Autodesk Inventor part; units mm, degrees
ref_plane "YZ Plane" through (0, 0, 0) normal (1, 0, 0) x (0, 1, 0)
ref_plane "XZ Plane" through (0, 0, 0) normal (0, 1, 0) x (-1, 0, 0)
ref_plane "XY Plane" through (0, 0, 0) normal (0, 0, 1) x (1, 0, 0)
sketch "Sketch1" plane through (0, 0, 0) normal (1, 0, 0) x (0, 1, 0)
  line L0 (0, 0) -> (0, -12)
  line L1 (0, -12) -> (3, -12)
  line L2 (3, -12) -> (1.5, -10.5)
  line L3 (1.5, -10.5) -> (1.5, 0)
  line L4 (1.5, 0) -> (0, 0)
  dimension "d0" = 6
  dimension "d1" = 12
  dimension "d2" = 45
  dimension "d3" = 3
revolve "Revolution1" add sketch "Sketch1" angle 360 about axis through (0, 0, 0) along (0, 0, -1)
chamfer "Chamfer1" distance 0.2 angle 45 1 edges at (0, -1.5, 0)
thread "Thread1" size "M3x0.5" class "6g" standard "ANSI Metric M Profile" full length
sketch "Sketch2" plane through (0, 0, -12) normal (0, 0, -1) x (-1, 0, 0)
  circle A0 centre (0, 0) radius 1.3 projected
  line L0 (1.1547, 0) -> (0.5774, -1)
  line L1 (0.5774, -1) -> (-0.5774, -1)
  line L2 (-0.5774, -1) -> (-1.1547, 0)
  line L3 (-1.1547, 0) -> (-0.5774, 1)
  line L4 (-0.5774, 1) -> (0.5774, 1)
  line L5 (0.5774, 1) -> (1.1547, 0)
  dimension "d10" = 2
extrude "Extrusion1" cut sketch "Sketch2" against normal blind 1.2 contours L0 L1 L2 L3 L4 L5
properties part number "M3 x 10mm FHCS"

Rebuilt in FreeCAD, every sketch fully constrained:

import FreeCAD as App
import Part
import Sketcher
from FreeCAD import Vector
Q = App.Units.Quantity


def edges_at(feature, points):
    """Names of the edges that pass closest to the given points."""
    edges = feature.Shape.Edges
    near = lambda p: min(range(len(edges)), key=lambda i: edges[i].distToShape(Part.Vertex(*p))[0])
    return sorted({f"Edge{near(p) + 1}" for p in points})

doc = App.newDocument("Part")
body = doc.addObject("PartDesign::Body", "Body")

sketch1 = body.newObject("Sketcher::SketchObject", "Sketch")
sketch1.AttachmentSupport = (doc.getObject("YZ_Plane"), [""])
sketch1.MapMode = "FlatFace"
sketch1.addGeometry([
    Part.LineSegment(Vector(1.5, 0, 0), Vector(0, 0, 0)),
    Part.LineSegment(Vector(0, 0, 0), Vector(0, -12, 0)),
    Part.LineSegment(Vector(0, -12, 0), Vector(3, -12, 0)),
    Part.LineSegment(Vector(3, -12, 0), Vector(1.5, -10.5, 0)),
    Part.LineSegment(Vector(1.5, -10.5, 0), Vector(1.5, 0, 0)),
], False)
sketch1.addConstraint([
    Sketcher.Constraint("Coincident", 0, 2, 1, 1),
    Sketcher.Constraint("Coincident", 1, 2, 2, 1),
    Sketcher.Constraint("Coincident", 2, 2, 3, 1),
    Sketcher.Constraint("Coincident", 3, 2, 4, 1),
    Sketcher.Constraint("Coincident", 4, 2, 0, 1),
    Sketcher.Constraint("Horizontal", 0),
    Sketcher.Constraint("Vertical", 1),
    Sketcher.Constraint("Horizontal", 2),
    Sketcher.Constraint("Vertical", 4),
    Sketcher.Constraint("Coincident", 0, 2, -1, 1),
    Sketcher.Constraint("DistanceX", 2, 1, 2, 2, 3.0),
    Sketcher.Constraint("DistanceY", 1, 2, 1, 1, 12.0),
    Sketcher.Constraint("Angle", 3, Q("135 deg")),
    Sketcher.Constraint("DistanceX", 0, 2, 0, 1, 1.5),
])
revolution = body.newObject("PartDesign::Revolution", "Revolution")
revolution.Profile = sketch1
revolution.ReferenceAxis = (sketch1, ["V_Axis"])
revolution.Angle = 360
doc.recompute()

chamfer = body.newObject("PartDesign::Chamfer", "Chamfer")
chamfer.Base = (revolution, edges_at(revolution, [(0, -1.5, 0)]))
chamfer.Size = 0.2

sketch2 = body.newObject("Sketcher::SketchObject", "Sketch001")
sketch2.AttachmentSupport = (doc.getObject("XY_Plane"), [""])
sketch2.MapMode = "FlatFace"
sketch2.AttachmentOffset = App.Placement(Vector(0, 0, -12), App.Rotation())
sketch2.addGeometry([
    Part.LineSegment(Vector(-0.6, -1, 0), Vector(-1.2, 0, 0)),
    Part.LineSegment(Vector(-1.2, 0, 0), Vector(-0.6, 1, 0)),
    Part.LineSegment(Vector(-0.6, 1, 0), Vector(0.6, 1, 0)),
    Part.LineSegment(Vector(0.6, 1, 0), Vector(1.2, 0, 0)),
    Part.LineSegment(Vector(1.2, 0, 0), Vector(0.6, -1, 0)),
    Part.LineSegment(Vector(0.6, -1, 0), Vector(-0.6, -1, 0)),
], False)
sketch2.addConstraint([
    Sketcher.Constraint("Coincident", 0, 2, 1, 1),
    Sketcher.Constraint("Coincident", 1, 2, 2, 1),
    Sketcher.Constraint("Coincident", 2, 2, 3, 1),
    Sketcher.Constraint("Coincident", 3, 2, 4, 1),
    Sketcher.Constraint("Coincident", 4, 2, 5, 1),
    Sketcher.Constraint("Coincident", 5, 2, 0, 1),
    Sketcher.Constraint("Horizontal", 2),
    Sketcher.Constraint("Horizontal", 5),
    Sketcher.Constraint("Symmetric", 0, 2, 3, 2, -1, 1),
    Sketcher.Constraint("Symmetric", 1, 2, 4, 2, -1, 1),
    Sketcher.Constraint("PointOnObject", 0, 2, -1),
    Sketcher.Constraint("Parallel", 0, 3),
    Sketcher.Constraint("Vertical", 2, 2, 4, 2),
    Sketcher.Constraint("DistanceY", 4, 2, 2, 2, 2.0),
    Sketcher.Constraint("DistanceX", 2, 1, 2, 2, 1.1548),
    Sketcher.Constraint("DistanceX", 0, 2, 2, 2, 1.732),
])
pocket1 = body.newObject("PartDesign::Pocket", "Pocket")
pocket1.Profile = sketch2
pocket1.Length = 1.2
pocket1.Reversed = True

doc.recompute()
